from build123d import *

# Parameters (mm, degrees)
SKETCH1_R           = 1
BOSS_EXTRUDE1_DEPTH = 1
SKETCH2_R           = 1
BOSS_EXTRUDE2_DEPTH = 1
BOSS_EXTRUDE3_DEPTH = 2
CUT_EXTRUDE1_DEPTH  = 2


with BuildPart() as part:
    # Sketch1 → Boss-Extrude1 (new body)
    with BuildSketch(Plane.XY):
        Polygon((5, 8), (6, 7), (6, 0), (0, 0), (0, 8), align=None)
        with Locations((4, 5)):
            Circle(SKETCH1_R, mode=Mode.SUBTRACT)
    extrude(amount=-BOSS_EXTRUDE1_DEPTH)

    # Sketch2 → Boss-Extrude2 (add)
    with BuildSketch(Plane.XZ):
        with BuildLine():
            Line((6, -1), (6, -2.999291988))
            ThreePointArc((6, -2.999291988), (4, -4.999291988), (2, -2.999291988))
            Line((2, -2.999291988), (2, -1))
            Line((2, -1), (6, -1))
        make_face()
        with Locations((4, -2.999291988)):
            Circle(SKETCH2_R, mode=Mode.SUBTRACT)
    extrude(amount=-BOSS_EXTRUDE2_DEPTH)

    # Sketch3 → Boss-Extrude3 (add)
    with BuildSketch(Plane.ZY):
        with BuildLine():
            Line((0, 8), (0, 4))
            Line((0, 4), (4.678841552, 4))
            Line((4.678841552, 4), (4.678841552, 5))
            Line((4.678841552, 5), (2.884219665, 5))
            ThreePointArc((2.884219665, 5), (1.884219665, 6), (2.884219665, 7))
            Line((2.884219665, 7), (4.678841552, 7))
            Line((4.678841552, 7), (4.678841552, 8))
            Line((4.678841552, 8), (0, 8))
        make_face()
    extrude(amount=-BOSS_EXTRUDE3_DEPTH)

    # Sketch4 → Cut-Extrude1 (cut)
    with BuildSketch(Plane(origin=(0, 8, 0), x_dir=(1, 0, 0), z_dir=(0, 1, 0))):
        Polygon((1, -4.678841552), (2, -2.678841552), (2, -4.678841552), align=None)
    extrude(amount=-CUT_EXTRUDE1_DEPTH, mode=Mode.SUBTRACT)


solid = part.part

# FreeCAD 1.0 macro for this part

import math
import FreeCAD as App
import Part
import Sketcher

doc = App.newDocument("Part")
body = doc.addObject("PartDesign::Body", "Body")

sketch1 = body.newObject("Sketcher::SketchObject", "Sketch")
sketch1.AttachmentSupport = (doc.getObject("XY_Plane"), [""])
sketch1.MapMode = "FlatFace"
sketch1.addGeometry(Part.LineSegment(App.Vector(6, 7, 0), App.Vector(5, 8, 0)), False)
sketch1.addGeometry(Part.LineSegment(App.Vector(5, 8, 0), App.Vector(0, 8, 0)), False)
sketch1.addGeometry(Part.LineSegment(App.Vector(0, 8, 0), App.Vector(0, 0, 0)), False)
sketch1.addGeometry(Part.LineSegment(App.Vector(0, 0, 0), App.Vector(6, 0, 0)), False)
sketch1.addGeometry(Part.LineSegment(App.Vector(6, 0, 0), App.Vector(6, 7, 0)), False)
sketch1.addGeometry(Part.Circle(App.Vector(4, 5, 0), App.Vector(0, 0, 1), 1), False)
sketch1.addConstraint(Sketcher.Constraint("Coincident", 0, 2, 1, 1))
sketch1.addConstraint(Sketcher.Constraint("Coincident", 1, 2, 2, 1))
sketch1.addConstraint(Sketcher.Constraint("Coincident", 2, 2, 3, 1))
sketch1.addConstraint(Sketcher.Constraint("Coincident", 3, 2, 4, 1))
sketch1.addConstraint(Sketcher.Constraint("Coincident", 4, 2, 0, 1))
sketch1.addConstraint(Sketcher.Constraint("Horizontal", 1))
sketch1.addConstraint(Sketcher.Constraint("Vertical", 2))
sketch1.addConstraint(Sketcher.Constraint("Horizontal", 3))
sketch1.addConstraint(Sketcher.Constraint("Vertical", 4))
sketch1.addConstraint(Sketcher.Constraint("Coincident", 2, 2, -1, 1))
sketch1.addConstraint(Sketcher.Constraint("Diameter", 5, 2.0))
sketch1.addConstraint(Sketcher.Constraint("DistanceX", 1, 2, 1, 1, 5.0))
sketch1.addConstraint(Sketcher.Constraint("DistanceX", 3, 1, 3, 2, 6.0))
sketch1.addConstraint(Sketcher.Constraint("DistanceY", 2, 2, 2, 1, 8.0))
sketch1.addConstraint(Sketcher.Constraint("DistanceY", 4, 1, 4, 2, 7.0))
sketch1.addConstraint(Sketcher.Constraint("DistanceX", -1, 1, 5, 3, 4.0))
sketch1.addConstraint(Sketcher.Constraint("DistanceY", -1, 1, 5, 3, 5.0))
pad1 = body.newObject("PartDesign::Pad", "Pad")
pad1.Profile = sketch1
pad1.Length = 1
pad1.Reversed = True

sketch2 = body.newObject("Sketcher::SketchObject", "Sketch001")
sketch2.AttachmentSupport = (doc.getObject("XZ_Plane"), [""])
sketch2.MapMode = "FlatFace"
sketch2.addGeometry(Part.LineSegment(App.Vector(6, -2.999292, 0), App.Vector(6, -1, 0)), False)
sketch2.addGeometry(Part.LineSegment(App.Vector(6, -1, 0), App.Vector(2, -1, 0)), False)
sketch2.addGeometry(Part.LineSegment(App.Vector(2, -1, 0), App.Vector(2, -2.999292, 0)), False)
sketch2.addGeometry(Part.ArcOfCircle(Part.Circle(App.Vector(4, -2.999292, 0), App.Vector(0, 0, 1), 2), math.radians(180), math.radians(360)), False)
sketch2.addGeometry(Part.Circle(App.Vector(4, -2.999292, 0), App.Vector(0, 0, 1), 1), False)
sketch2.addConstraint(Sketcher.Constraint("Coincident", 0, 2, 1, 1))
sketch2.addConstraint(Sketcher.Constraint("Coincident", 1, 2, 2, 1))
sketch2.addConstraint(Sketcher.Constraint("Tangent", 2, 2, 3, 1))
sketch2.addConstraint(Sketcher.Constraint("Tangent", 3, 2, 0, 1))
sketch2.addConstraint(Sketcher.Constraint("Vertical", 0))
sketch2.addConstraint(Sketcher.Constraint("Horizontal", 1))
sketch2.addConstraint(Sketcher.Constraint("Vertical", 2))
sketch2.addConstraint(Sketcher.Constraint("Coincident", 4, 3, 3, 3))
sketch2.addConstraint(Sketcher.Constraint("Diameter", 4, 2.0))
sketch2.addConstraint(Sketcher.Constraint("Radius", 3, 2.0))
sketch2.addConstraint(Sketcher.Constraint("DistanceX", -1, 1, 3, 3, 4.0))
sketch2.addConstraint(Sketcher.Constraint("DistanceY", 0, 2, -1, 1, 1.0))
sketch2.addConstraint(Sketcher.Constraint("DistanceY", 0, 1, 0, 2, 1.999292))
pad2 = body.newObject("PartDesign::Pad", "Pad001")
pad2.Profile = sketch2
pad2.Length = 1
pad2.Reversed = True

sketch3 = body.newObject("Sketcher::SketchObject", "Sketch002")
sketch3.AttachmentSupport = (doc.getObject("YZ_Plane"), [""])
sketch3.MapMode = "FlatFace"
sketch3.addGeometry(Part.LineSegment(App.Vector(8, 0, 0), App.Vector(4, 0, 0)), False)
sketch3.addGeometry(Part.LineSegment(App.Vector(4, 0, 0), App.Vector(4, 4.678842, 0)), False)
sketch3.addGeometry(Part.LineSegment(App.Vector(4, 4.678842, 0), App.Vector(5, 4.678842, 0)), False)
sketch3.addGeometry(Part.LineSegment(App.Vector(5, 4.678842, 0), App.Vector(5, 2.88422, 0)), False)
sketch3.addGeometry(Part.ArcOfCircle(Part.Circle(App.Vector(6, 2.88422, 0), App.Vector(0, 0, 1), 1), math.radians(180), math.radians(360)), False)
sketch3.addGeometry(Part.LineSegment(App.Vector(7, 2.88422, 0), App.Vector(7, 4.678842, 0)), False)
sketch3.addGeometry(Part.LineSegment(App.Vector(7, 4.678842, 0), App.Vector(8, 4.678842, 0)), False)
sketch3.addGeometry(Part.LineSegment(App.Vector(8, 4.678842, 0), App.Vector(8, 0, 0)), False)
sketch3.addConstraint(Sketcher.Constraint("Coincident", 0, 2, 1, 1))
sketch3.addConstraint(Sketcher.Constraint("Coincident", 1, 2, 2, 1))
sketch3.addConstraint(Sketcher.Constraint("Coincident", 2, 2, 3, 1))
sketch3.addConstraint(Sketcher.Constraint("Tangent", 3, 2, 4, 1))
sketch3.addConstraint(Sketcher.Constraint("Tangent", 4, 2, 5, 1))
sketch3.addConstraint(Sketcher.Constraint("Coincident", 5, 2, 6, 1))
sketch3.addConstraint(Sketcher.Constraint("Coincident", 6, 2, 7, 1))
sketch3.addConstraint(Sketcher.Constraint("Coincident", 7, 2, 0, 1))
sketch3.addConstraint(Sketcher.Constraint("Horizontal", 0))
sketch3.addConstraint(Sketcher.Constraint("Vertical", 1))
sketch3.addConstraint(Sketcher.Constraint("Horizontal", 2))
sketch3.addConstraint(Sketcher.Constraint("Vertical", 3))
sketch3.addConstraint(Sketcher.Constraint("Vertical", 5))
sketch3.addConstraint(Sketcher.Constraint("Horizontal", 6))
sketch3.addConstraint(Sketcher.Constraint("Vertical", 7))
sketch3.addConstraint(Sketcher.Constraint("PointOnObject", 0, 2, -1))
sketch3.addConstraint(Sketcher.Constraint("Horizontal", 2, 2, 5, 2))
sketch3.addConstraint(Sketcher.Constraint("Equal", 2, 6))
sketch3.addConstraint(Sketcher.Constraint("Radius", 4, 1.0))
sketch3.addConstraint(Sketcher.Constraint("DistanceX", 0, 2, 0, 1, 4.0))
sketch3.addConstraint(Sketcher.Constraint("DistanceX", -1, 1, 4, 3, 6.0))
sketch3.addConstraint(Sketcher.Constraint("DistanceY", 1, 1, 1, 2, 4.678842))
sketch3.addConstraint(Sketcher.Constraint("DistanceY", 3, 2, 3, 1, 1.794622))
pad3 = body.newObject("PartDesign::Pad", "Pad002")
pad3.Profile = sketch3
pad3.Length = 2

sketch4 = body.newObject("Sketcher::SketchObject", "Sketch003")
sketch4.AttachmentSupport = (doc.getObject("XZ_Plane"), [""])
sketch4.MapMode = "FlatFace"
sketch4.AttachmentOffset = App.Placement(App.Vector(0, 0, -8), App.Rotation())
sketch4.addGeometry(Part.LineSegment(App.Vector(2, 2.678842, 0), App.Vector(1, 4.678842, 0)), False)
sketch4.addGeometry(Part.LineSegment(App.Vector(1, 4.678842, 0), App.Vector(2, 4.678842, 0)), False)
sketch4.addGeometry(Part.LineSegment(App.Vector(2, 4.678842, 0), App.Vector(2, 2.678842, 0)), False)
sketch4.addConstraint(Sketcher.Constraint("Coincident", 0, 2, 1, 1))
sketch4.addConstraint(Sketcher.Constraint("Coincident", 1, 2, 2, 1))
sketch4.addConstraint(Sketcher.Constraint("Coincident", 2, 2, 0, 1))
sketch4.addConstraint(Sketcher.Constraint("Horizontal", 1))
sketch4.addConstraint(Sketcher.Constraint("Vertical", 2))
sketch4.addConstraint(Sketcher.Constraint("DistanceX", 1, 1, 1, 2, 1.0))
sketch4.addConstraint(Sketcher.Constraint("DistanceY", 2, 2, 2, 1, 2.0))
sketch4.addConstraint(Sketcher.Constraint("DistanceX", -1, 1, 0, 2, 1.0))
sketch4.addConstraint(Sketcher.Constraint("DistanceY", -1, 1, 0, 2, 4.678842))
pocket1 = body.newObject("PartDesign::Pocket", "Pocket")
pocket1.Profile = sketch4
pocket1.Length = 2
pocket1.Reversed = True

doc.recompute()
